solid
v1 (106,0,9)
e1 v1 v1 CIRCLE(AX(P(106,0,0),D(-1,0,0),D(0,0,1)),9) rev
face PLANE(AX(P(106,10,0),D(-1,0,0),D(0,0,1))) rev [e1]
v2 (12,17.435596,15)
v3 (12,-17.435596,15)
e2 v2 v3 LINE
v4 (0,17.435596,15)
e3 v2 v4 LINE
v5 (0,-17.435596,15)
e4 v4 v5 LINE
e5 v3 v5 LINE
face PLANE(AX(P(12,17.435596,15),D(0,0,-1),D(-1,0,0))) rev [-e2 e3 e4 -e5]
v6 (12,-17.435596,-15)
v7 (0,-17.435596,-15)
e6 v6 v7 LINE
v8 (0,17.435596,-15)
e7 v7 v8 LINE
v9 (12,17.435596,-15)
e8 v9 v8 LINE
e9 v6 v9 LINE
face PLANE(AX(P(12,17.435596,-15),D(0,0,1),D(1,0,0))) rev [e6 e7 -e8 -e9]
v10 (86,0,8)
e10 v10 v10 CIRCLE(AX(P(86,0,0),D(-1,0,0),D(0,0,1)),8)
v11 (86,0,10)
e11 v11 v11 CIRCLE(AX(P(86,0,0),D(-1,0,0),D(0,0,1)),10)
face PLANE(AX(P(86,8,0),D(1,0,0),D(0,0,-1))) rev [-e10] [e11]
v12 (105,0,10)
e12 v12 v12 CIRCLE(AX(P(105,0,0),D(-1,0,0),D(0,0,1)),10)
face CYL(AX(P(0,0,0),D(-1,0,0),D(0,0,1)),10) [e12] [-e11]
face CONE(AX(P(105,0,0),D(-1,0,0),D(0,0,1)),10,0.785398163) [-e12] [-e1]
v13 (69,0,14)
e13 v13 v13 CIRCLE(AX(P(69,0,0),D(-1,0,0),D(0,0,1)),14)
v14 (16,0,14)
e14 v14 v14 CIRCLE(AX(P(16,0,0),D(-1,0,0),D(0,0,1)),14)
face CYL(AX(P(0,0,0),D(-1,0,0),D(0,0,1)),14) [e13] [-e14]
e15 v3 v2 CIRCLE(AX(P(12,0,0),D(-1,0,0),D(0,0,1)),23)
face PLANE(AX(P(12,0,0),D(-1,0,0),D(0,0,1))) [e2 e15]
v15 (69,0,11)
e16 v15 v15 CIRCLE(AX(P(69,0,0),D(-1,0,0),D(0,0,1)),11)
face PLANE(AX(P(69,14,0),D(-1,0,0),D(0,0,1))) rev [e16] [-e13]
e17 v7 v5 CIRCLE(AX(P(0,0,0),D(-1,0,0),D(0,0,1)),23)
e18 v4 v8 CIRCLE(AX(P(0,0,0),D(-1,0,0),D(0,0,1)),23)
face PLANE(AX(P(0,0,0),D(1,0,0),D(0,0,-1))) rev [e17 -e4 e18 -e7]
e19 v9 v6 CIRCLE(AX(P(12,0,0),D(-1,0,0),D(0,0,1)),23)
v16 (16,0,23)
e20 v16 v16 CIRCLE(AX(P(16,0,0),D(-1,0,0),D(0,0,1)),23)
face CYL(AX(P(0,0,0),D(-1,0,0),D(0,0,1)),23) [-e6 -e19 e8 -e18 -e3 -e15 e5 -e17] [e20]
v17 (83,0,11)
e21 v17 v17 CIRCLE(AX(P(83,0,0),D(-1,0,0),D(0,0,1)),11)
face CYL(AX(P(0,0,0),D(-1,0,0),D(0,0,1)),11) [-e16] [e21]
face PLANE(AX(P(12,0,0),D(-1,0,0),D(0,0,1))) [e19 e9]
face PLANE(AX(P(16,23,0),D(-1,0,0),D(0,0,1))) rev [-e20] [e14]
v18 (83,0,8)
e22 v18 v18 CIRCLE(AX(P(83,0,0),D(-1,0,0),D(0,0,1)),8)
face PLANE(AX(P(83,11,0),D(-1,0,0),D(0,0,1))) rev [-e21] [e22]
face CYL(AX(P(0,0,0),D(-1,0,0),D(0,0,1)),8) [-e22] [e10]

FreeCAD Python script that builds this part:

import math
import FreeCAD as App
import Part
import Sketcher

V = App.Vector
Q = App.Units.Quantity


def edges_at(feature, points):
    """Names of the edges that pass closest to the given points."""
    edges = feature.Shape.Edges
    near = lambda p: min(range(len(edges)), key=lambda i: edges[i].distToShape(Part.Vertex(*p))[0])
    return sorted({f"Edge{near(p) + 1}" for p in points})


def add_polygon(sketch, points):
    """Adds a closed chain of lines whose ends are joined by coincident constraints."""
    first, n = sketch.GeometryCount, len(points)
    for a, b in zip(points, points[1:] + points[:1]):
        sketch.addGeometry(Part.LineSegment(App.Vector(*a, 0), App.Vector(*b, 0)), False)
    for i in range(n):
        sketch.addConstraint(Sketcher.Constraint("Coincident", first + i, 2, first + (i + 1) % n, 1))

doc = App.newDocument("Part")
params = doc.addObject("Spreadsheet::Sheet", "Params")
for row, (alias, value) in enumerate([
    ("sketch1_width", "106 mm"),
    ("sketch1_width2", "20 mm"),
    ("sketch1_width3", "3 mm"),
    ("sketch1_width4", "14 mm"),
    ("sketch1_width5", "53 mm"),
    ("revolution_angle", "360 deg"),
    ("chamfer_size", "1 mm"),
    ("sketch2_radius", "23 mm"),
    ("pocket1_length", "12 mm"),
], start=1):
    params.set(f"A{row}", alias)
    params.set(f"B{row}", "=" + value)
    params.setAlias(f"B{row}", alias)

body = doc.addObject("PartDesign::Body", "Body")

# Sketch on XY plane
sketch1 = doc.addObject("Sketcher::SketchObject", "Sketch")
body.addObject(sketch1)
sketch1.AttachmentSupport = (doc.XY_Plane, [""])
sketch1.MapMode = "FlatFace"
add_polygon(sketch1, [(0, 23), (0, 0), (106, 0), (106, 10), (86, 10), (86, 8), (83, 8), (83, 11), (69, 11), (69, 14), (16, 14), (16, 23)])  # lines 0-11
sketch1.addConstraint(Sketcher.Constraint("Vertical", 0))
sketch1.addConstraint(Sketcher.Constraint("Horizontal", 1))
sketch1.addConstraint(Sketcher.Constraint("Vertical", 2))
sketch1.addConstraint(Sketcher.Constraint("Horizontal", 3))
sketch1.addConstraint(Sketcher.Constraint("Vertical", 4))
sketch1.addConstraint(Sketcher.Constraint("Horizontal", 5))
sketch1.addConstraint(Sketcher.Constraint("Vertical", 6))
sketch1.addConstraint(Sketcher.Constraint("Horizontal", 7))
sketch1.addConstraint(Sketcher.Constraint("Vertical", 8))
sketch1.addConstraint(Sketcher.Constraint("Horizontal", 9))
sketch1.addConstraint(Sketcher.Constraint("Vertical", 10))
sketch1.addConstraint(Sketcher.Constraint("Horizontal", 11))
sketch1.addConstraint(Sketcher.Constraint("Coincident", 0, 2, -1, 1))
sketch1.addConstraint(Sketcher.Constraint("Equal", 5, 6))
sketch1.addConstraint(Sketcher.Constraint("Equal", 6, 8))
sketch1.addConstraint(Sketcher.Constraint("DistanceX", 1, 1, 1, 2, Q("106 mm")))
sketch1.addConstraint(Sketcher.Constraint("DistanceX", 3, 2, 3, 1, Q("20 mm")))
sketch1.addConstraint(Sketcher.Constraint("DistanceX", 5, 2, 5, 1, Q("3 mm")))
sketch1.addConstraint(Sketcher.Constraint("DistanceX", 7, 2, 7, 1, Q("14 mm")))
sketch1.addConstraint(Sketcher.Constraint("DistanceX", 9, 2, 9, 1, Q("53 mm")))
sketch1.addConstraint(Sketcher.Constraint("DistanceY", 0, 2, 0, 1, Q("23 mm")))
sketch1.addConstraint(Sketcher.Constraint("DistanceY", 2, 1, 2, 2, Q("10 mm")))
sketch1.addConstraint(Sketcher.Constraint("DistanceY", 4, 2, 4, 1, Q("2 mm")))
sketch1.setExpression("Constraints[27]", "Params.sketch1_width")
sketch1.setExpression("Constraints[28]", "Params.sketch1_width2")
sketch1.setExpression("Constraints[29]", "Params.sketch1_width3")
sketch1.setExpression("Constraints[30]", "Params.sketch1_width4")
sketch1.setExpression("Constraints[31]", "Params.sketch1_width5")
revolution = doc.addObject("PartDesign::Revolution", "Revolution")
body.addObject(revolution)
revolution.Profile = sketch1
revolution.ReferenceAxis = (sketch1, ["H_Axis"])
revolution.setExpression("Angle", "Params.revolution_angle")
doc.recompute()

chamfer = doc.addObject("PartDesign::Chamfer", "Chamfer")
body.addObject(chamfer)
chamfer.Base = (revolution, edges_at(revolution, [(106, 0, -10)]))
chamfer.setExpression("Size", "Params.chamfer_size")

# Sketch on YZ plane
sketch2 = doc.addObject("Sketcher::SketchObject", "Sketch001")
body.addObject(sketch2)
sketch2.AttachmentSupport = (doc.YZ_Plane, [""])
sketch2.MapMode = "FlatFace"
sketch2.AttachmentOffset = App.Placement(V(0, 0, 12), App.Rotation())
sketch2.addGeometry(Part.LineSegment(V(-17, -15, 0), V(17, -15, 0)), False)
sketch2.addGeometry(Part.ArcOfCircle(Part.Circle(V(0, 0, 0), V(0, 0, 1), 23), math.radians(-139), math.radians(-41)), False)
sketch2.addGeometry(Part.LineSegment(V(17, 15, 0), V(-17, 15, 0)), False)
sketch2.addGeometry(Part.ArcOfCircle(Part.Circle(V(0, 0, 0), V(0, 0, 1), 23), math.radians(41), math.radians(139)), False)
sketch2.addConstraint(Sketcher.Constraint("Coincident", 0, 1, 1, 1))
sketch2.addConstraint(Sketcher.Constraint("Coincident", 1, 2, 0, 2))
sketch2.addConstraint(Sketcher.Constraint("Coincident", 2, 1, 3, 1))
sketch2.addConstraint(Sketcher.Constraint("Coincident", 3, 2, 2, 2))
sketch2.addConstraint(Sketcher.Constraint("Horizontal", 0))
sketch2.addConstraint(Sketcher.Constraint("Horizontal", 2))
sketch2.addConstraint(Sketcher.Constraint("Coincident", 1, 3, -1, 1))
sketch2.addConstraint(Sketcher.Constraint("Coincident", 3, 3, -1, 1))
sketch2.addConstraint(Sketcher.Constraint("Equal", 1, 3))
sketch2.addConstraint(Sketcher.Constraint("Vertical", 1, 2, 2, 1))
sketch2.addConstraint(Sketcher.Constraint("Radius", 1, Q("23 mm")))
sketch2.addConstraint(Sketcher.Constraint("DistanceY", 0, 1, -1, 1, Q("15 mm")))
sketch2.setExpression("Constraints[10]", "Params.sketch2_radius")
pocket1 = doc.addObject("PartDesign::Pocket", "Pocket")
body.addObject(pocket1)
pocket1.Profile = sketch2
pocket1.setExpression("Length", "Params.pocket1_length")

doc.recompute()
